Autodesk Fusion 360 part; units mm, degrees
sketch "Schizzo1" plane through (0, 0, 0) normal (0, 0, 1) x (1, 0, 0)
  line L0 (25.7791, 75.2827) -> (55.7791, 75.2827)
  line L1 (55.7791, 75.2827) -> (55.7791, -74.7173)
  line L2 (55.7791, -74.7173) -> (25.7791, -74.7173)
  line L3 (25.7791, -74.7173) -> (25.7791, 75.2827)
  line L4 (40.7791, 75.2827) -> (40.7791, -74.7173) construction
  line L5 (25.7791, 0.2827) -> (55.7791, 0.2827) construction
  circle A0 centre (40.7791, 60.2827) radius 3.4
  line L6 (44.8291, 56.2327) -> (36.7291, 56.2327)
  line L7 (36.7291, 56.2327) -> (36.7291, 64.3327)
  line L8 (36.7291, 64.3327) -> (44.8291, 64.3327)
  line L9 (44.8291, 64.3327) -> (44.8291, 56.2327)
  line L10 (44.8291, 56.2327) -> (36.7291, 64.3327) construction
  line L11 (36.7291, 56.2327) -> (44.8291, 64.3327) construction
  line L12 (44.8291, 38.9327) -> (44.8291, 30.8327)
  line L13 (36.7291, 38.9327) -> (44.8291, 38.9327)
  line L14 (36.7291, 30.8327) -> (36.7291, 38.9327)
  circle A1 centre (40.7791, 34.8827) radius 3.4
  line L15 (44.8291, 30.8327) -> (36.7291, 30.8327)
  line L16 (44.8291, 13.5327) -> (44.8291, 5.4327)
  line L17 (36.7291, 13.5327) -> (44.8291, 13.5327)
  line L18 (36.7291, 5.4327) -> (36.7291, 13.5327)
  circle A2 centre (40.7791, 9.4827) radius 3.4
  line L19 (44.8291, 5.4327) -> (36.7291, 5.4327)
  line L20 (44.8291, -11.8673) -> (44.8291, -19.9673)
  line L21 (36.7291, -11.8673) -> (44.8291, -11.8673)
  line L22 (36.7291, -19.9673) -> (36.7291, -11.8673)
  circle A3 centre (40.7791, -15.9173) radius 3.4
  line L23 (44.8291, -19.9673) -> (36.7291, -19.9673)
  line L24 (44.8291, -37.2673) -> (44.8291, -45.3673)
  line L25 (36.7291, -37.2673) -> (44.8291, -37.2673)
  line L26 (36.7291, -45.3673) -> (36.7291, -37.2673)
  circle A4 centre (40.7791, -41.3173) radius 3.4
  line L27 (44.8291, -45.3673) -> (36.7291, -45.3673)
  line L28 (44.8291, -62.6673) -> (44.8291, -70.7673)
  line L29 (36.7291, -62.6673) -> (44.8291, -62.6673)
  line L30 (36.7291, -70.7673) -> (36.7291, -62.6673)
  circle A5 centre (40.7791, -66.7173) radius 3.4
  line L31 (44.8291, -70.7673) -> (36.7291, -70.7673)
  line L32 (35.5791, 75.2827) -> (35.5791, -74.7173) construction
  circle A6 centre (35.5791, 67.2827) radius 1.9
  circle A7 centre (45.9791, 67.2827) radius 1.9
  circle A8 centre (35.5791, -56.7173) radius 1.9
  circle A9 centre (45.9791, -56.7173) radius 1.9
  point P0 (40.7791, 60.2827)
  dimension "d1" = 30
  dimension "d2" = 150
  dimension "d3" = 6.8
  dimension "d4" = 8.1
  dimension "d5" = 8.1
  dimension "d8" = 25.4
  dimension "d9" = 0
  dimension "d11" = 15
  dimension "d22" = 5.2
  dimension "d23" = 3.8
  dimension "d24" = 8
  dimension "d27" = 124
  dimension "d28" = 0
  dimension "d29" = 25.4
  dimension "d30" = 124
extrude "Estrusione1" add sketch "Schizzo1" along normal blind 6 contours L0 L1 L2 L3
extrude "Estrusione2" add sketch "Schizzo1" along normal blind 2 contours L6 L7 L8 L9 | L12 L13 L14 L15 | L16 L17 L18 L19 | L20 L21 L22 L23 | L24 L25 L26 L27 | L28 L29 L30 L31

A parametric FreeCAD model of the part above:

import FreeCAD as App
import Part
import Sketcher

V = App.Vector


def add_polygon(sketch, points):
    """Adds a closed chain of lines whose ends are joined by coincident constraints."""
    first, n = sketch.GeometryCount, len(points)
    for a, b in zip(points, points[1:] + points[:1]):
        sketch.addGeometry(Part.LineSegment(App.Vector(*a, 0), App.Vector(*b, 0)), False)
    for i in range(n):
        sketch.addConstraint(Sketcher.Constraint("Coincident", first + i, 2, first + (i + 1) % n, 1))

doc = App.newDocument("Part")
body = doc.addObject("PartDesign::Body", "Body")

# Sketch on XY plane
sketch1 = body.newObject("Sketcher::SketchObject", "Sketch")
sketch1.AttachmentSupport = (doc.getObject("XY_Plane"), [""])
sketch1.MapMode = "FlatFace"
add_polygon(sketch1, [(55.7791, 75.2827), (25.7791, 75.2827), (25.7791, -74.7173), (55.7791, -74.7173)])  # lines 0-3
sketch1.addGeometry(Part.Circle(V(35.5791, -56.7173, 0), V(0, 0, 1), 1.9), False)  # 4
add_polygon(sketch1, [(36.7291, -62.6673), (44.8291, -62.6673), (44.8291, -70.7673), (36.7291, -70.7673)])  # lines 5-8
sketch1.addGeometry(Part.Circle(V(45.9791, -56.7173, 0), V(0, 0, 1), 1.9), False)  # 9
add_polygon(sketch1, [(36.7291, -37.2673), (44.8291, -37.2673), (44.8291, -45.3673), (36.7291, -45.3673)])  # lines 10-13
add_polygon(sketch1, [(36.7291, -11.8673), (44.8291, -11.8673), (44.8291, -19.9673), (36.7291, -19.9673)])  # lines 14-17
sketch1.addGeometry(Part.Circle(V(35.5791, 67.2827, 0), V(0, 0, 1), 1.9), False)  # 18
add_polygon(sketch1, [(36.7291, 13.5327), (44.8291, 13.5327), (44.8291, 5.4327), (36.7291, 5.4327)])  # lines 19-22
add_polygon(sketch1, [(36.7291, 38.9327), (44.8291, 38.9327), (44.8291, 30.8327), (36.7291, 30.8327)])  # lines 23-26
add_polygon(sketch1, [(44.8291, 64.3327), (44.8291, 56.2327), (36.7291, 56.2327), (36.7291, 64.3327)])  # lines 27-30
sketch1.addGeometry(Part.Circle(V(45.9791, 67.2827, 0), V(0, 0, 1), 1.9), False)  # 31
sketch1.addConstraint(Sketcher.Constraint("Horizontal", 0))
sketch1.addConstraint(Sketcher.Constraint("Vertical", 1))
sketch1.addConstraint(Sketcher.Constraint("Horizontal", 2))
sketch1.addConstraint(Sketcher.Constraint("Vertical", 3))
sketch1.addConstraint(Sketcher.Constraint("Horizontal", 5))
sketch1.addConstraint(Sketcher.Constraint("Vertical", 6))
sketch1.addConstraint(Sketcher.Constraint("Horizontal", 7))
sketch1.addConstraint(Sketcher.Constraint("Vertical", 8))
sketch1.addConstraint(Sketcher.Constraint("Horizontal", 10))
sketch1.addConstraint(Sketcher.Constraint("Vertical", 11))
sketch1.addConstraint(Sketcher.Constraint("Horizontal", 12))
sketch1.addConstraint(Sketcher.Constraint("Vertical", 13))
sketch1.addConstraint(Sketcher.Constraint("Horizontal", 14))
sketch1.addConstraint(Sketcher.Constraint("Vertical", 15))
sketch1.addConstraint(Sketcher.Constraint("Horizontal", 16))
sketch1.addConstraint(Sketcher.Constraint("Vertical", 17))
sketch1.addConstraint(Sketcher.Constraint("Horizontal", 19))
sketch1.addConstraint(Sketcher.Constraint("Vertical", 20))
sketch1.addConstraint(Sketcher.Constraint("Horizontal", 21))
sketch1.addConstraint(Sketcher.Constraint("Vertical", 22))
sketch1.addConstraint(Sketcher.Constraint("Horizontal", 23))
sketch1.addConstraint(Sketcher.Constraint("Vertical", 24))
sketch1.addConstraint(Sketcher.Constraint("Horizontal", 25))
sketch1.addConstraint(Sketcher.Constraint("Vertical", 26))
sketch1.addConstraint(Sketcher.Constraint("Vertical", 27))
sketch1.addConstraint(Sketcher.Constraint("Horizontal", 28))
sketch1.addConstraint(Sketcher.Constraint("Vertical", 29))
sketch1.addConstraint(Sketcher.Constraint("Horizontal", 30))
sketch1.addConstraint(Sketcher.Constraint("Equal", 4, 9))
sketch1.addConstraint(Sketcher.Constraint("Equal", 9, 18))
sketch1.addConstraint(Sketcher.Constraint("Equal", 18, 31))
sketch1.addConstraint(Sketcher.Constraint("Horizontal", 4, 3, 9, 3))
sketch1.addConstraint(Sketcher.Constraint("Horizontal", 18, 3, 31, 3))
sketch1.addConstraint(Sketcher.Constraint("Vertical", 4, 3, 18, 3))
sketch1.addConstraint(Sketcher.Constraint("Vertical", 9, 3, 31, 3))
sketch1.addConstraint(Sketcher.Constraint("Vertical", 6, 2, 10, 2))
sketch1.addConstraint(Sketcher.Constraint("Vertical", 8, 2, 12, 2))
sketch1.addConstraint(Sketcher.Constraint("Vertical", 11, 2, 14, 2))
sketch1.addConstraint(Sketcher.Constraint("Vertical", 13, 2, 16, 2))
sketch1.addConstraint(Sketcher.Constraint("Vertical", 15, 2, 19, 2))
sketch1.addConstraint(Sketcher.Constraint("Vertical", 17, 2, 21, 2))
sketch1.addConstraint(Sketcher.Constraint("Vertical", 20, 2, 23, 2))
sketch1.addConstraint(Sketcher.Constraint("Vertical", 22, 2, 25, 2))
sketch1.addConstraint(Sketcher.Constraint("Vertical", 24, 2, 27, 2))
sketch1.addConstraint(Sketcher.Constraint("Vertical", 26, 2, 28, 2))
sketch1.addConstraint(Sketcher.Constraint("Equal", 30, 6))
sketch1.addConstraint(Sketcher.Constraint("Equal", 8, 11))
sketch1.addConstraint(Sketcher.Constraint("Equal", 13, 15))
sketch1.addConstraint(Sketcher.Constraint("Equal", 17, 20))
sketch1.addConstraint(Sketcher.Constraint("Equal", 22, 24))
sketch1.addConstraint(Sketcher.Constraint("Equal", 26, 27))
sketch1.addConstraint(Sketcher.Constraint("Diameter", 4, 3.8))
sketch1.addConstraint(Sketcher.Constraint("DistanceX", 0, 2, 0, 1, 30.0))
sketch1.addConstraint(Sketcher.Constraint("DistanceY", 1, 2, 1, 1, 150.0))
sketch1.addConstraint(Sketcher.Constraint("DistanceX", 5, 1, 5, 2, 8.1))
sketch1.addConstraint(Sketcher.Constraint("DistanceY", 4, 3, 18, 3, 124.0))
sketch1.addConstraint(Sketcher.Constraint("DistanceY", 18, 3, 0, 2, 8.0))
sketch1.addConstraint(Sketcher.Constraint("DistanceY", 5, 2, 10, 2, 25.4))
sketch1.addConstraint(Sketcher.Constraint("DistanceY", 10, 2, 14, 2, 25.4))
sketch1.addConstraint(Sketcher.Constraint("DistanceY", 14, 2, 19, 2, 25.4))
sketch1.addConstraint(Sketcher.Constraint("DistanceY", 19, 2, 23, 2, 25.4))
sketch1.addConstraint(Sketcher.Constraint("DistanceX", 4, 3, 9, 3, 10.4))
sketch1.addConstraint(Sketcher.Constraint("DistanceX", 0, 2, 18, 3, 9.8))
sketch1.addConstraint(Sketcher.Constraint("DistanceY", 23, 2, 27, 2, 17.3))
sketch1.addConstraint(Sketcher.Constraint("DistanceX", 5, 2, 9, 3, 1.15))
sketch1.addConstraint(Sketcher.Constraint("DistanceY", 5, 2, 9, 3, 5.95))
sketch1.addConstraint(Sketcher.Constraint("DistanceX", -1, 1, 4, 3, 35.579))
sketch1.addConstraint(Sketcher.Constraint("DistanceY", 4, 3, -1, 1, 56.7173))
pad1 = body.newObject("PartDesign::Pad", "Pad")
pad1.Profile = sketch1
pad1.Length = 6

# Sketch on XY plane
sketch2 = body.newObject("Sketcher::SketchObject", "Sketch001")
sketch2.AttachmentSupport = (doc.getObject("XY_Plane"), [""])
sketch2.MapMode = "FlatFace"
add_polygon(sketch2, [(36.7291, 56.2327), (44.8291, 56.2327), (44.8291, 64.3327), (36.7291, 64.3327)])  # lines 0-3
sketch2.addGeometry(Part.Circle(V(40.7791, 60.2827, 0), V(0, 0, 1), 3.4), False)  # 4
add_polygon(sketch2, [(44.8291, 30.8327), (44.8291, 38.9327), (36.7291, 38.9327), (36.7291, 30.8327)])  # lines 5-8
sketch2.addGeometry(Part.Circle(V(40.7791, 34.8827, 0), V(0, 0, 1), 3.4), False)  # 9
add_polygon(sketch2, [(44.8291, 5.4327), (44.8291, 13.5327), (36.7291, 13.5327), (36.7291, 5.4327)])  # lines 10-13
sketch2.addGeometry(Part.Circle(V(40.7791, 9.4827, 0), V(0, 0, 1), 3.4), False)  # 14
add_polygon(sketch2, [(44.8291, -19.9673), (44.8291, -11.8673), (36.7291, -11.8673), (36.7291, -19.9673)])  # lines 15-18
sketch2.addGeometry(Part.Circle(V(40.7791, -15.9173, 0), V(0, 0, 1), 3.4), False)  # 19
add_polygon(sketch2, [(44.8291, -45.3673), (44.8291, -37.2673), (36.7291, -37.2673), (36.7291, -45.3673)])  # lines 20-23
sketch2.addGeometry(Part.Circle(V(40.7791, -41.3173, 0), V(0, 0, 1), 3.4), False)  # 24
add_polygon(sketch2, [(44.8291, -70.7673), (44.8291, -62.6673), (36.7291, -62.6673), (36.7291, -70.7673)])  # lines 25-28
sketch2.addGeometry(Part.Circle(V(40.7791, -66.7173, 0), V(0, 0, 1), 3.4), False)  # 29
sketch2.addConstraint(Sketcher.Constraint("Horizontal", 0))
sketch2.addConstraint(Sketcher.Constraint("Vertical", 1))
sketch2.addConstraint(Sketcher.Constraint("Horizontal", 2))
sketch2.addConstraint(Sketcher.Constraint("Vertical", 3))
sketch2.addConstraint(Sketcher.Constraint("Vertical", 5))
sketch2.addConstraint(Sketcher.Constraint("Horizontal", 6))
sketch2.addConstraint(Sketcher.Constraint("Vertical", 7))
sketch2.addConstraint(Sketcher.Constraint("Horizontal", 8))
sketch2.addConstraint(Sketcher.Constraint("Vertical", 10))
sketch2.addConstraint(Sketcher.Constraint("Horizontal", 11))
sketch2.addConstraint(Sketcher.Constraint("Vertical", 12))
sketch2.addConstraint(Sketcher.Constraint("Horizontal", 13))
sketch2.addConstraint(Sketcher.Constraint("Vertical", 15))
sketch2.addConstraint(Sketcher.Constraint("Horizontal", 16))
sketch2.addConstraint(Sketcher.Constraint("Vertical", 17))
sketch2.addConstraint(Sketcher.Constraint("Horizontal", 18))
sketch2.addConstraint(Sketcher.Constraint("Vertical", 20))
sketch2.addConstraint(Sketcher.Constraint("Horizontal", 21))
sketch2.addConstraint(Sketcher.Constraint("Vertical", 22))
sketch2.addConstraint(Sketcher.Constraint("Horizontal", 23))
sketch2.addConstraint(Sketcher.Constraint("Vertical", 25))
sketch2.addConstraint(Sketcher.Constraint("Horizontal", 26))
sketch2.addConstraint(Sketcher.Constraint("Vertical", 27))
sketch2.addConstraint(Sketcher.Constraint("Horizontal", 28))
sketch2.addConstraint(Sketcher.Constraint("Equal", 4, 9))
sketch2.addConstraint(Sketcher.Constraint("Equal", 9, 14))
sketch2.addConstraint(Sketcher.Constraint("Equal", 14, 19))
sketch2.addConstraint(Sketcher.Constraint("Equal", 19, 24))
sketch2.addConstraint(Sketcher.Constraint("Equal", 24, 29))
sketch2.addConstraint(Sketcher.Constraint("Vertical", 4, 3, 9, 3))
sketch2.addConstraint(Sketcher.Constraint("Vertical", 9, 3, 14, 3))
sketch2.addConstraint(Sketcher.Constraint("Vertical", 14, 3, 19, 3))
sketch2.addConstraint(Sketcher.Constraint("Vertical", 19, 3, 24, 3))
sketch2.addConstraint(Sketcher.Constraint("Vertical", 24, 3, 29, 3))
sketch2.addConstraint(Sketcher.Constraint("Vertical", 1, 2, 5, 2))
sketch2.addConstraint(Sketcher.Constraint("Vertical", 3, 2, 6, 2))
sketch2.addConstraint(Sketcher.Constraint("Vertical", 8, 2, 10, 2))
sketch2.addConstraint(Sketcher.Constraint("Vertical", 7, 2, 11, 2))
sketch2.addConstraint(Sketcher.Constraint("Vertical", 13, 2, 15, 2))
sketch2.addConstraint(Sketcher.Constraint("Vertical", 12, 2, 16, 2))
sketch2.addConstraint(Sketcher.Constraint("Vertical", 18, 2, 20, 2))
sketch2.addConstraint(Sketcher.Constraint("Vertical", 17, 2, 21, 2))
sketch2.addConstraint(Sketcher.Constraint("Vertical", 23, 2, 25, 2))
sketch2.addConstraint(Sketcher.Constraint("Vertical", 22, 2, 26, 2))
sketch2.addConstraint(Sketcher.Constraint("Equal", 28, 1))
sketch2.addConstraint(Sketcher.Constraint("Equal", 3, 5))
sketch2.addConstraint(Sketcher.Constraint("Equal", 7, 10))
sketch2.addConstraint(Sketcher.Constraint("Equal", 12, 15))
sketch2.addConstraint(Sketcher.Constraint("Equal", 17, 20))
sketch2.addConstraint(Sketcher.Constraint("Equal", 22, 25))
sketch2.addConstraint(Sketcher.Constraint("Diameter", 4, 6.8))
sketch2.addConstraint(Sketcher.Constraint("DistanceX", 0, 1, 0, 2, 8.1))
sketch2.addConstraint(Sketcher.Constraint("DistanceY", 9, 3, 4, 3, 25.4))
sketch2.addConstraint(Sketcher.Constraint("DistanceY", 14, 3, 9, 3, 25.4))
sketch2.addConstraint(Sketcher.Constraint("DistanceY", 19, 3, 14, 3, 25.4))
sketch2.addConstraint(Sketcher.Constraint("DistanceY", 24, 3, 19, 3, 25.4))
sketch2.addConstraint(Sketcher.Constraint("DistanceY", 29, 3, 24, 3, 25.4))
sketch2.addConstraint(Sketcher.Constraint("DistanceY", 5, 2, 1, 2, 25.4))
sketch2.addConstraint(Sketcher.Constraint("DistanceY", 10, 2, 5, 2, 25.4))
sketch2.addConstraint(Sketcher.Constraint("DistanceY", 15, 2, 10, 2, 25.4))
sketch2.addConstraint(Sketcher.Constraint("DistanceY", 20, 2, 15, 2, 25.4))
sketch2.addConstraint(Sketcher.Constraint("DistanceY", 25, 2, 20, 2, 25.4))
sketch2.addConstraint(Sketcher.Constraint("DistanceX", 4, 3, 0, 2, 4.05))
sketch2.addConstraint(Sketcher.Constraint("DistanceY", 0, 2, 4, 3, 4.05))
sketch2.addConstraint(Sketcher.Constraint("DistanceX", -1, 1, 4, 3, 40.779))
sketch2.addConstraint(Sketcher.Constraint("DistanceY", -1, 1, 4, 3, 60.2827))
pad2 = body.newObject("PartDesign::Pad", "Pad001")
pad2.Profile = sketch2
pad2.Length = 2

doc.recompute()
